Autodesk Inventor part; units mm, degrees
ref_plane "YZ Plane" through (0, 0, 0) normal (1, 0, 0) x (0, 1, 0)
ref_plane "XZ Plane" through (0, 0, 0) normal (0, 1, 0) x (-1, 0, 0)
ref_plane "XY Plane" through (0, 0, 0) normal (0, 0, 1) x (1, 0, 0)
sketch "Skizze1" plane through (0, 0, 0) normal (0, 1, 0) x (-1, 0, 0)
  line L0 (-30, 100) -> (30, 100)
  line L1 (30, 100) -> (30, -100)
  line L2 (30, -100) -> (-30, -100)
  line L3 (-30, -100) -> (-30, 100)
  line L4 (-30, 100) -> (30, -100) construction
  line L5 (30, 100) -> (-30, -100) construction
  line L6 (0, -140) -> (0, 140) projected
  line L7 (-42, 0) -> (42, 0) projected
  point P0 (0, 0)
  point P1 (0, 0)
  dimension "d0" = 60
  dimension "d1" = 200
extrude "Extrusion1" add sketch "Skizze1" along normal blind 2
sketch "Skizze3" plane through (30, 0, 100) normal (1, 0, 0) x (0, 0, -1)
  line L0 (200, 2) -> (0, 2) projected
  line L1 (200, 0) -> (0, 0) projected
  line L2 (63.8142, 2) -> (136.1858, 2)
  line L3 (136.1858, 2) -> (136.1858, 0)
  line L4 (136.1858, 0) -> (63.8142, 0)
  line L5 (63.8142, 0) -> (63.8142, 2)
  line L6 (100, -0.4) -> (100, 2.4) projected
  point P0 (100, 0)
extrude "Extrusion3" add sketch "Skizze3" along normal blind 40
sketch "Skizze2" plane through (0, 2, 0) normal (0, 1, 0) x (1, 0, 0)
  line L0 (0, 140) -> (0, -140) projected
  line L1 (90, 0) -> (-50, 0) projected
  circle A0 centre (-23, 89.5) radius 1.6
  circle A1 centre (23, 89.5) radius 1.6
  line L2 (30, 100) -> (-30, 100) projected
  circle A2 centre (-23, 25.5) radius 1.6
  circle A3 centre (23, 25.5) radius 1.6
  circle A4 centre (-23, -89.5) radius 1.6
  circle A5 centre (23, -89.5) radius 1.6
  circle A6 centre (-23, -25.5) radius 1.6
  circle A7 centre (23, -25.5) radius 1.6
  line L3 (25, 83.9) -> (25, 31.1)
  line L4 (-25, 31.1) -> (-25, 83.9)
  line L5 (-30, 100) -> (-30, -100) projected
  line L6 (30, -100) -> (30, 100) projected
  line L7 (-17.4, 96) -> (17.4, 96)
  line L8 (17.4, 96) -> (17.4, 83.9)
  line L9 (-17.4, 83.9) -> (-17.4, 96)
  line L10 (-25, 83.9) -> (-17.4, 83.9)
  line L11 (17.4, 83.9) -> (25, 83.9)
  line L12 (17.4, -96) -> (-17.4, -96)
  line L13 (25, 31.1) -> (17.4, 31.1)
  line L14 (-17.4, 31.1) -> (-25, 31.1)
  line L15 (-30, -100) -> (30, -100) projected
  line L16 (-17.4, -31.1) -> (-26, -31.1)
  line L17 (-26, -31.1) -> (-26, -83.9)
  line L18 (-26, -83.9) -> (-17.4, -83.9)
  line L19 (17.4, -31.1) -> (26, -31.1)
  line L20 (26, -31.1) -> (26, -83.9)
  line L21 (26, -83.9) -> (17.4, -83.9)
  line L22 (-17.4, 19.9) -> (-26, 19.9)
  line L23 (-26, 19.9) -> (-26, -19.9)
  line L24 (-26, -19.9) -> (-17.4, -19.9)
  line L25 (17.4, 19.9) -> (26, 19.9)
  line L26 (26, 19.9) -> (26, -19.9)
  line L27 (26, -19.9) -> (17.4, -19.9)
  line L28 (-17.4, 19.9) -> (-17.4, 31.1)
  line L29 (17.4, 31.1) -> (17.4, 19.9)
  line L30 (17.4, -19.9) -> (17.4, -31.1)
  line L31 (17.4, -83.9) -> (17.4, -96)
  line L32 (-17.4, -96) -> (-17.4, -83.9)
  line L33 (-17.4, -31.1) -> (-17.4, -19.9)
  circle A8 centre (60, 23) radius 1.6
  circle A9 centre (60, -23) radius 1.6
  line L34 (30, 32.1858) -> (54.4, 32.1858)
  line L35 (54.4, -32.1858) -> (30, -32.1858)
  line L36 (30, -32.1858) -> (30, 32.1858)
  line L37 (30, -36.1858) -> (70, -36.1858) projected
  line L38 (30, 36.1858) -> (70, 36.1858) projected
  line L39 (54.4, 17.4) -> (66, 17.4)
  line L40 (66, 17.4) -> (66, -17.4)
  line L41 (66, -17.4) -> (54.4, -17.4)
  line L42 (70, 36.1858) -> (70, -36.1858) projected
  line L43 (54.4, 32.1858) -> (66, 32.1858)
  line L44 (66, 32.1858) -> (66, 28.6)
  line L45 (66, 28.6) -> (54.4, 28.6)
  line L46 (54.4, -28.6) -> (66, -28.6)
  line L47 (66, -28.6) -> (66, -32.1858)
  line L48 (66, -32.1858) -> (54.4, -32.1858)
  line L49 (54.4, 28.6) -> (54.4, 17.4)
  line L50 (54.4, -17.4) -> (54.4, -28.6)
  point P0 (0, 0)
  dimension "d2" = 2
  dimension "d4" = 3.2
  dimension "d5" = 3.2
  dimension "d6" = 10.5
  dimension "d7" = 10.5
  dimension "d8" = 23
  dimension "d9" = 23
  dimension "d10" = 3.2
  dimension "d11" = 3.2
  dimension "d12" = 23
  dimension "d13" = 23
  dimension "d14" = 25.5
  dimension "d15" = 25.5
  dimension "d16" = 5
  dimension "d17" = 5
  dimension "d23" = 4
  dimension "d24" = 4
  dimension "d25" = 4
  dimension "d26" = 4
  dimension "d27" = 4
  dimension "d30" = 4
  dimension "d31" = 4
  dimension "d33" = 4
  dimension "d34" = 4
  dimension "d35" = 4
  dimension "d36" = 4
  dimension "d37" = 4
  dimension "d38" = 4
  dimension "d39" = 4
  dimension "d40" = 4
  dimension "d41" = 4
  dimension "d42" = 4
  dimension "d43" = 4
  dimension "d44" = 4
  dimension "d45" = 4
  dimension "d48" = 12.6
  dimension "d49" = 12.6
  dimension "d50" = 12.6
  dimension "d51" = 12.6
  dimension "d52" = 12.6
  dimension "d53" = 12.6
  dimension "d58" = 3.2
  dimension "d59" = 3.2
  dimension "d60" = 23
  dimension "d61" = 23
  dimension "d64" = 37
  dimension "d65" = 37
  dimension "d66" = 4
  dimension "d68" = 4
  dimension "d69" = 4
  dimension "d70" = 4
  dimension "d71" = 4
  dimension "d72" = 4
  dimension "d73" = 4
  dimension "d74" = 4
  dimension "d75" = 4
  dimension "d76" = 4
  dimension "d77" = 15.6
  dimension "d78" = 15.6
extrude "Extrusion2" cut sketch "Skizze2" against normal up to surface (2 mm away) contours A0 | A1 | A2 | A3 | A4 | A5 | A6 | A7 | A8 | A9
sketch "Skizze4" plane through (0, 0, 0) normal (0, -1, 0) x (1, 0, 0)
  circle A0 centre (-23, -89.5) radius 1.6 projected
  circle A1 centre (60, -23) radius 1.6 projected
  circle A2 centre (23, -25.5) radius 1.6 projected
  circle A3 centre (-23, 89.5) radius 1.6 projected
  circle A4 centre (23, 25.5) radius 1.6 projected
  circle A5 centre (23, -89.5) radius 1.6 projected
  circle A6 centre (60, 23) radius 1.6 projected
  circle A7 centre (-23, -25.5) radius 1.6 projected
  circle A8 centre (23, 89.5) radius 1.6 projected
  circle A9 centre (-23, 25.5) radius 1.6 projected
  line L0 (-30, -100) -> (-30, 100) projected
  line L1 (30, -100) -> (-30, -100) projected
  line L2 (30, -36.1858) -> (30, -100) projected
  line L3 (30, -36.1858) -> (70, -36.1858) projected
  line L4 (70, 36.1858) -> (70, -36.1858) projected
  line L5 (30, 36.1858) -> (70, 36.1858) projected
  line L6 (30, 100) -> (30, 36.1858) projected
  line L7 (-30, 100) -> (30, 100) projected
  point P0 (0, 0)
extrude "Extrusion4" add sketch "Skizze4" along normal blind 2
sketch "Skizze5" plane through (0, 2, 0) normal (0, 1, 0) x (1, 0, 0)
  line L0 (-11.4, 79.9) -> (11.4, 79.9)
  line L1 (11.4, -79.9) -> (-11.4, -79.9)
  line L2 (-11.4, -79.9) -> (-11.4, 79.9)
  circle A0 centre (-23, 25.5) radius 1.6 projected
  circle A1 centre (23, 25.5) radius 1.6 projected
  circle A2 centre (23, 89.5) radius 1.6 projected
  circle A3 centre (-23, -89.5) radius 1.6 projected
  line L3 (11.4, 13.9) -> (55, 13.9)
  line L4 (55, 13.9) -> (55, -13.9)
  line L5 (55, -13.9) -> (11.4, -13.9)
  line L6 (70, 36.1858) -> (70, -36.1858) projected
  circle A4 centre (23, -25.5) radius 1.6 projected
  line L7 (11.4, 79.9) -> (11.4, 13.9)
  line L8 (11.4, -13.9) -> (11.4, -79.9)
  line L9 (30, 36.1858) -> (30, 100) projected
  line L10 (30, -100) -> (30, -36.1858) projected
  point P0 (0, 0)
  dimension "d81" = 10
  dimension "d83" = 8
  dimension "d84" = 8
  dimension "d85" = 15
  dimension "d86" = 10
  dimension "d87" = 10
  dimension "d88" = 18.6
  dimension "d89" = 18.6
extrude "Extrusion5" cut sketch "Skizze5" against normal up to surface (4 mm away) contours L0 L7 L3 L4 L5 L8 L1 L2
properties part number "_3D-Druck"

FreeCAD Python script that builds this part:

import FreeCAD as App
import Part
import Sketcher
from FreeCAD import Vector

doc = App.newDocument("Part")
body = doc.addObject("PartDesign::Body", "Body")

# Sketch on XZ plane
sketch1 = doc.addObject("Sketcher::SketchObject", "Sketch")
body.addObject(sketch1)
sketch1.AttachmentSupport = (doc.XZ_Plane, [""])
sketch1.MapMode = "FlatFace"
sketch1.addGeometry([
    Part.LineSegment(Vector(30, 100, 0), Vector(30, -100, 0)),
    Part.LineSegment(Vector(30, -100, 0), Vector(-30, -100, 0)),
    Part.LineSegment(Vector(-30, -100, 0), Vector(-30, 100, 0)),
    Part.LineSegment(Vector(-30, 100, 0), Vector(30, 100, 0)),
], False)
sketch1.addConstraint([
    Sketcher.Constraint("Coincident", 0, 2, 1, 1),
    Sketcher.Constraint("Coincident", 1, 2, 2, 1),
    Sketcher.Constraint("Coincident", 2, 2, 3, 1),
    Sketcher.Constraint("Coincident", 3, 2, 0, 1),
    Sketcher.Constraint("Vertical", 0),
    Sketcher.Constraint("Horizontal", 1),
    Sketcher.Constraint("Vertical", 2),
    Sketcher.Constraint("Horizontal", 3),
    Sketcher.Constraint("Symmetric", 0, 2, 2, 2, -1, 1),
    Sketcher.Constraint("DistanceX", 1, 2, 1, 1, 60.0),
    Sketcher.Constraint("DistanceY", 0, 2, 0, 1, 200.0),
])
pad1 = doc.addObject("PartDesign::Pad", "Pad")
body.addObject(pad1)
pad1.Profile = sketch1
pad1.Length = 2
pad1.Reversed = True

# Sketch on YZ plane
sketch2 = doc.addObject("Sketcher::SketchObject", "Sketch001")
body.addObject(sketch2)
sketch2.AttachmentSupport = (doc.YZ_Plane, [""])
sketch2.MapMode = "FlatFace"
sketch2.AttachmentOffset = App.Placement(Vector(0, 0, 30), App.Rotation())
sketch2.addGeometry([
    Part.LineSegment(Vector(0, -36.2, 0), Vector(2, -36.2, 0)),
    Part.LineSegment(Vector(2, -36.2, 0), Vector(2, 36.2, 0)),
    Part.LineSegment(Vector(2, 36.2, 0), Vector(0, 36.2, 0)),
    Part.LineSegment(Vector(0, 36.2, 0), Vector(0, -36.2, 0)),
], False)
sketch2.addConstraint([
    Sketcher.Constraint("Coincident", 0, 2, 1, 1),
    Sketcher.Constraint("Coincident", 1, 2, 2, 1),
    Sketcher.Constraint("Coincident", 2, 2, 3, 1),
    Sketcher.Constraint("Coincident", 3, 2, 0, 1),
    Sketcher.Constraint("Horizontal", 0),
    Sketcher.Constraint("Vertical", 1),
    Sketcher.Constraint("Horizontal", 2),
    Sketcher.Constraint("Vertical", 3),
    Sketcher.Constraint("Symmetric", 2, 2, 3, 2, -1, 1),
    Sketcher.Constraint("DistanceX", 0, 1, 0, 2, 2.0),
    Sketcher.Constraint("DistanceY", 1, 1, 1, 2, 72.3716),
])
pad2 = doc.addObject("PartDesign::Pad", "Pad001")
body.addObject(pad2)
pad2.Profile = sketch2
pad2.Length = 40

# Sketch on XZ plane
sketch3 = doc.addObject("Sketcher::SketchObject", "Sketch002")
body.addObject(sketch3)
sketch3.AttachmentSupport = (doc.XZ_Plane, [""])
sketch3.MapMode = "FlatFace"
sketch3.AttachmentOffset = App.Placement(Vector(0, 0, -2), App.Rotation())
sketch3.addGeometry([
    Part.Circle(Vector(-23, -89.5, 0), Vector(0, 0, 1), 1.6),  # 0
    Part.Circle(Vector(23, -89.5, 0), Vector(0, 0, 1), 1.6),  # 1
    Part.Circle(Vector(-23, -25.5, 0), Vector(0, 0, 1), 1.6),  # 2
    Part.Circle(Vector(23, -25.5, 0), Vector(0, 0, 1), 1.6),  # 3
    Part.Circle(Vector(-23, 89.5, 0), Vector(0, 0, 1), 1.6),  # 4
    Part.Circle(Vector(23, 89.5, 0), Vector(0, 0, 1), 1.6),  # 5
    Part.Circle(Vector(-23, 25.5, 0), Vector(0, 0, 1), 1.6),  # 6
    Part.Circle(Vector(23, 25.5, 0), Vector(0, 0, 1), 1.6),  # 7
    Part.Circle(Vector(60, -23, 0), Vector(0, 0, 1), 1.6),  # 8
    Part.Circle(Vector(60, 23, 0), Vector(0, 0, 1), 1.6),  # 9
], False)
sketch3.addConstraint([
    Sketcher.Constraint("Equal", 0, 1),
    Sketcher.Constraint("Equal", 1, 2),
    Sketcher.Constraint("Equal", 2, 3),
    Sketcher.Constraint("Equal", 3, 4),
    Sketcher.Constraint("Equal", 4, 5),
    Sketcher.Constraint("Equal", 5, 6),
    Sketcher.Constraint("Equal", 6, 7),
    Sketcher.Constraint("Equal", 7, 8),
    Sketcher.Constraint("Equal", 8, 9),
    Sketcher.Constraint("Symmetric", 1, 3, 4, 3, -1, 1),
    Sketcher.Constraint("Symmetric", 0, 3, 5, 3, -1, 1),
    Sketcher.Constraint("Symmetric", 3, 3, 6, 3, -1, 1),
    Sketcher.Constraint("Symmetric", 2, 3, 7, 3, -1, 1),
    Sketcher.Constraint("Symmetric", 0, 3, 1, 3, -2),
    Sketcher.Constraint("Symmetric", 2, 3, 3, 3, -2),
    Sketcher.Constraint("Symmetric", 8, 3, 9, 3, -1),
    Sketcher.Constraint("Vertical", 0, 3, 2, 3),
    Sketcher.Constraint("Diameter", 0, 3.2),
    Sketcher.Constraint("DistanceX", 0, 3, -1, 1, 23.0),
    Sketcher.Constraint("DistanceY", 8, 3, -1, 1, 23.0),
    Sketcher.Constraint("DistanceX", 3, 3, 8, 3, 37.0),
    Sketcher.Constraint("DistanceY", 2, 3, -1, 1, 25.5),
    Sketcher.Constraint("DistanceY", 0, 3, 2, 3, 64.0),
])
pocket1 = doc.addObject("PartDesign::Pocket", "Pocket")
body.addObject(pocket1)
pocket1.Profile = sketch3
pocket1.Length = 2
pocket1.Reversed = True

# Sketch on XZ plane
sketch4 = doc.addObject("Sketcher::SketchObject", "Sketch003")
body.addObject(sketch4)
sketch4.AttachmentSupport = (doc.XZ_Plane, [""])
sketch4.MapMode = "FlatFace"
sketch4.addGeometry([
    Part.LineSegment(Vector(-30, 100, 0), Vector(-30, -100, 0)),  # 0
    Part.LineSegment(Vector(-30, -100, 0), Vector(30, -100, 0)),  # 1
    Part.LineSegment(Vector(30, -100, 0), Vector(30, -36.2, 0)),  # 2
    Part.LineSegment(Vector(30, -36.2, 0), Vector(70, -36.2, 0)),  # 3
    Part.LineSegment(Vector(70, -36.2, 0), Vector(70, 36.2, 0)),  # 4
    Part.LineSegment(Vector(70, 36.2, 0), Vector(30, 36.2, 0)),  # 5
    Part.LineSegment(Vector(30, 36.2, 0), Vector(30, 100, 0)),  # 6
    Part.LineSegment(Vector(30, 100, 0), Vector(-30, 100, 0)),  # 7
    Part.Circle(Vector(-23, -89.5, 0), Vector(0, 0, 1), 1.6),  # 8
    Part.Circle(Vector(-23, -25.5, 0), Vector(0, 0, 1), 1.6),  # 9
    Part.Circle(Vector(23, -89.5, 0), Vector(0, 0, 1), 1.6),  # 10
    Part.Circle(Vector(23, -25.5, 0), Vector(0, 0, 1), 1.6),  # 11
    Part.Circle(Vector(60, -23, 0), Vector(0, 0, 1), 1.6),  # 12
    Part.Circle(Vector(-23, 25.5, 0), Vector(0, 0, 1), 1.6),  # 13
    Part.Circle(Vector(-23, 89.5, 0), Vector(0, 0, 1), 1.6),  # 14
    Part.Circle(Vector(23, 25.5, 0), Vector(0, 0, 1), 1.6),  # 15
    Part.Circle(Vector(60, 23, 0), Vector(0, 0, 1), 1.6),  # 16
    Part.Circle(Vector(23, 89.5, 0), Vector(0, 0, 1), 1.6),  # 17
], False)
sketch4.addConstraint([
    Sketcher.Constraint("Coincident", 0, 2, 1, 1),
    Sketcher.Constraint("Coincident", 1, 2, 2, 1),
    Sketcher.Constraint("Coincident", 2, 2, 3, 1),
    Sketcher.Constraint("Coincident", 3, 2, 4, 1),
    Sketcher.Constraint("Coincident", 4, 2, 5, 1),
    Sketcher.Constraint("Coincident", 5, 2, 6, 1),
    Sketcher.Constraint("Coincident", 6, 2, 7, 1),
    Sketcher.Constraint("Coincident", 7, 2, 0, 1),
    Sketcher.Constraint("Vertical", 0),
    Sketcher.Constraint("Horizontal", 1),
    Sketcher.Constraint("Vertical", 2),
    Sketcher.Constraint("Horizontal", 3),
    Sketcher.Constraint("Vertical", 4),
    Sketcher.Constraint("Horizontal", 5),
    Sketcher.Constraint("Vertical", 6),
    Sketcher.Constraint("Horizontal", 7),
    Sketcher.Constraint("Equal", 8, 9),
    Sketcher.Constraint("Equal", 9, 10),
    Sketcher.Constraint("Equal", 10, 11),
    Sketcher.Constraint("Equal", 11, 12),
    Sketcher.Constraint("Equal", 12, 13),
    Sketcher.Constraint("Equal", 13, 14),
    Sketcher.Constraint("Equal", 14, 15),
    Sketcher.Constraint("Equal", 15, 16),
    Sketcher.Constraint("Equal", 16, 17),
    Sketcher.Constraint("Symmetric", 11, 3, 13, 3, -1, 1),
    Sketcher.Constraint("Symmetric", 10, 3, 14, 3, -1, 1),
    Sketcher.Constraint("Symmetric", 9, 3, 15, 3, -1, 1),
    Sketcher.Constraint("Symmetric", 8, 3, 17, 3, -1, 1),
    Sketcher.Constraint("Symmetric", 0, 2, 6, 2, -1, 1),
    Sketcher.Constraint("Symmetric", 8, 3, 10, 3, -2),
    Sketcher.Constraint("Symmetric", 9, 3, 11, 3, -2),
    Sketcher.Constraint("Symmetric", 12, 3, 16, 3, -1),
    Sketcher.Constraint("Symmetric", 2, 2, 5, 2, -1),
    Sketcher.Constraint("Vertical", 8, 3, 9, 3),
    Sketcher.Constraint("Diameter", 8, 3.2),
    Sketcher.Constraint("DistanceX", 1, 1, 1, 2, 60.0),
    Sketcher.Constraint("DistanceX", 3, 1, 3, 2, 40.0),
    Sketcher.Constraint("DistanceY", 0, 2, 0, 1, 200.0),
    Sketcher.Constraint("DistanceX", 8, 3, -1, 1, 23.0),
    Sketcher.Constraint("DistanceX", -1, 1, 12, 3, 60.0),
    Sketcher.Constraint("DistanceY", 12, 3, -1, 1, 23.0),
    Sketcher.Constraint("DistanceY", 8, 3, 9, 3, 64.0),
    Sketcher.Constraint("DistanceY", 9, 3, 13, 3, 51.0),
    Sketcher.Constraint("DistanceY", 2, 1, 2, 2, 63.8142),
])
pad3 = doc.addObject("PartDesign::Pad", "Pad002")
body.addObject(pad3)
pad3.Profile = sketch4
pad3.Length = 2

# Sketch on XZ plane
sketch5 = doc.addObject("Sketcher::SketchObject", "Sketch004")
body.addObject(sketch5)
sketch5.AttachmentSupport = (doc.XZ_Plane, [""])
sketch5.MapMode = "FlatFace"
sketch5.AttachmentOffset = App.Placement(Vector(0, 0, -2), App.Rotation())
sketch5.addGeometry([
    Part.LineSegment(Vector(11, -80, 0), Vector(-11, -80, 0)),  # 0
    Part.LineSegment(Vector(-11, -80, 0), Vector(-11, 80, 0)),  # 1
    Part.LineSegment(Vector(-11, 80, 0), Vector(11, 80, 0)),  # 2
    Part.LineSegment(Vector(11, 80, 0), Vector(11, 14, 0)),  # 3
    Part.LineSegment(Vector(11, 14, 0), Vector(55, 14, 0)),  # 4
    Part.LineSegment(Vector(55, 14, 0), Vector(55, -14, 0)),  # 5
    Part.LineSegment(Vector(55, -14, 0), Vector(11, -14, 0)),  # 6
    Part.LineSegment(Vector(11, -14, 0), Vector(11, -80, 0)),  # 7
], False)
sketch5.addConstraint([
    Sketcher.Constraint("Coincident", 0, 2, 1, 1),
    Sketcher.Constraint("Coincident", 1, 2, 2, 1),
    Sketcher.Constraint("Coincident", 2, 2, 3, 1),
    Sketcher.Constraint("Coincident", 3, 2, 4, 1),
    Sketcher.Constraint("Coincident", 4, 2, 5, 1),
    Sketcher.Constraint("Coincident", 5, 2, 6, 1),
    Sketcher.Constraint("Coincident", 6, 2, 7, 1),
    Sketcher.Constraint("Coincident", 7, 2, 0, 1),
    Sketcher.Constraint("Horizontal", 0),
    Sketcher.Constraint("Vertical", 1),
    Sketcher.Constraint("Horizontal", 2),
    Sketcher.Constraint("Vertical", 3),
    Sketcher.Constraint("Horizontal", 4),
    Sketcher.Constraint("Vertical", 5),
    Sketcher.Constraint("Horizontal", 6),
    Sketcher.Constraint("Vertical", 7),
    Sketcher.Constraint("Symmetric", 0, 2, 2, 2, -1, 1),
    Sketcher.Constraint("Symmetric", 3, 2, 6, 2, -1),
    Sketcher.Constraint("DistanceY", 3, 2, 3, 1, 66.0),
    Sketcher.Constraint("DistanceX", 0, 2, 0, 1, 22.8),
    Sketcher.Constraint("DistanceX", 4, 1, 4, 2, 43.6),
    Sketcher.Constraint("DistanceY", 1, 1, 1, 2, 159.8),
])
pocket2 = doc.addObject("PartDesign::Pocket", "Pocket001")
body.addObject(pocket2)
pocket2.Profile = sketch5
pocket2.Length = 4
pocket2.Reversed = True

doc.recompute()
